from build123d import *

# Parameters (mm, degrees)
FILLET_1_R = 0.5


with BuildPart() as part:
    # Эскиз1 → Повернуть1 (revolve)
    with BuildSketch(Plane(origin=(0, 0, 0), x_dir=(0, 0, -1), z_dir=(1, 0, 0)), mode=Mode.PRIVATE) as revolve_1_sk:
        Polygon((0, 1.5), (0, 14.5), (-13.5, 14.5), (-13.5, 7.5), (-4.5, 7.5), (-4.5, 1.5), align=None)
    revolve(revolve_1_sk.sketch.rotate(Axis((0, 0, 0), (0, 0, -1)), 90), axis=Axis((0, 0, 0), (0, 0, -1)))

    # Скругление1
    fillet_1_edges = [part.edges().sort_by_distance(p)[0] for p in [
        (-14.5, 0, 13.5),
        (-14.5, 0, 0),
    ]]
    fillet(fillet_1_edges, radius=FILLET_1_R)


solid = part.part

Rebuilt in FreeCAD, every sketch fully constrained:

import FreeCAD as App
import Part
import Sketcher

V = App.Vector


def edges_at(feature, points):
    """Names of the edges that pass closest to the given points."""
    edges = feature.Shape.Edges
    near = lambda p: min(range(len(edges)), key=lambda i: edges[i].distToShape(Part.Vertex(*p))[0])
    return sorted({f"Edge{near(p) + 1}" for p in points})


def add_polygon(sketch, points):
    """Adds a closed chain of lines whose ends are joined by coincident constraints."""
    first, n = sketch.GeometryCount, len(points)
    for a, b in zip(points, points[1:] + points[:1]):
        sketch.addGeometry(Part.LineSegment(App.Vector(*a, 0), App.Vector(*b, 0)), False)
    for i in range(n):
        sketch.addConstraint(Sketcher.Constraint("Coincident", first + i, 2, first + (i + 1) % n, 1))

doc = App.newDocument("Part")
params = doc.addObject("Spreadsheet::Sheet", "Params")
for row, (alias, value) in enumerate([
    ("sketch1_width", "13 mm"),
    ("sketch1_width2", "7 mm"),
    ("sketch1_height", "9 mm"),
    ("sketch1_height2", "13.5 mm"),
    ("revolution_angle", "360 deg"),
    ("fillet_radius", "0.5 mm"),
], start=1):
    params.set(f"A{row}", alias)
    params.set(f"B{row}", "=" + value)
    params.setAlias(f"B{row}", alias)

body = doc.addObject("PartDesign::Body", "Body")

# Sketch on YZ plane
sketch1 = body.newObject("Sketcher::SketchObject", "Sketch")
sketch1.AttachmentSupport = (doc.getObject("YZ_Plane"), [""])
sketch1.MapMode = "FlatFace"
add_polygon(sketch1, [(1.5, 0), (14.5, 0), (14.5, 13.5), (7.5, 13.5), (7.5, 4.5), (1.5, 4.5)])  # lines 0-5
sketch1.addConstraint([
    Sketcher.Constraint("Horizontal", 0),
    Sketcher.Constraint("Vertical", 1),
    Sketcher.Constraint("Horizontal", 2),
    Sketcher.Constraint("Vertical", 3),
    Sketcher.Constraint("Horizontal", 4),
    Sketcher.Constraint("Vertical", 5),
    Sketcher.Constraint("PointOnObject", 0, 2, -1),
    Sketcher.Constraint("DistanceX", 0, 1, 0, 2, 13.0),
    Sketcher.Constraint("DistanceX", 2, 2, 2, 1, 7.0),
    Sketcher.Constraint("DistanceY", 3, 2, 3, 1, 9.0),
    Sketcher.Constraint("DistanceY", 1, 1, 1, 2, 13.5),
    Sketcher.Constraint("DistanceX", -1, 1, 0, 2, 14.5),
])
sketch1.setExpression("Constraints[13]", "Params.sketch1_width")
sketch1.setExpression("Constraints[14]", "Params.sketch1_width2")
sketch1.setExpression("Constraints[15]", "Params.sketch1_height")
sketch1.setExpression("Constraints[16]", "Params.sketch1_height2")
revolution = body.newObject("PartDesign::Revolution", "Revolution")
revolution.Profile = sketch1
revolution.ReferenceAxis = (sketch1, ["V_Axis"])
revolution.setExpression("Angle", "Params.revolution_angle")
doc.recompute()

fillet = body.newObject("PartDesign::Fillet", "Fillet")
fillet.Base = (revolution, edges_at(revolution, [(-14.5, 0, 13.5), (-14.5, 0, 0)]))
fillet.setExpression("Radius", "Params.fillet_radius")

doc.recompute()
